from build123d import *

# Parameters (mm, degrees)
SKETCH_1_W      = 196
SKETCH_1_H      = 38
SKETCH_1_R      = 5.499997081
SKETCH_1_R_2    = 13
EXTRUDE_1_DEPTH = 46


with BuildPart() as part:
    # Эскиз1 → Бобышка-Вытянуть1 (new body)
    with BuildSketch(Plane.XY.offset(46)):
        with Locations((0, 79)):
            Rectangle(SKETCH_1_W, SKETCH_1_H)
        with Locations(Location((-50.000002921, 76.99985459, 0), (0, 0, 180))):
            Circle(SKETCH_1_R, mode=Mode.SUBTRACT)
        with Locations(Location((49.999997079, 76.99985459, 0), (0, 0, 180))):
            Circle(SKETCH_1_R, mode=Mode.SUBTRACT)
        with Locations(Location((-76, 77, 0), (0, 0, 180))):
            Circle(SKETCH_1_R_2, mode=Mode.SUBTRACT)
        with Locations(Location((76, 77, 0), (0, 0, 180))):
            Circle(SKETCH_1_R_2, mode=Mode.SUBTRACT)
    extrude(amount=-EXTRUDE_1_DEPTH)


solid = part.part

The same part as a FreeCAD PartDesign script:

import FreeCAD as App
import Part
import Sketcher
Q = App.Units.Quantity

doc = App.newDocument("Part")
params = doc.addObject("Spreadsheet::Sheet", "Params")
for row, (alias, value) in enumerate([
    ("sketch1_diameter", "26 mm"),
    ("sketch1_width", "196 mm"),
    ("sketch1_height", "38 mm"),
    ("pad1_length", "46 mm"),
], start=1):
    params.set(f"A{row}", alias)
    params.set(f"B{row}", "=" + value)
    params.setAlias(f"B{row}", alias)

body = doc.addObject("PartDesign::Body", "Body")

sketch1 = body.newObject("Sketcher::SketchObject", "Sketch")
sketch1.AttachmentSupport = (doc.getObject("XY_Plane"), [""])
sketch1.MapMode = "FlatFace"
sketch1.AttachmentOffset = App.Placement(App.Vector(0, 0, 46), App.Rotation())
sketch1.addGeometry([
    Part.LineSegment(App.Vector(-98, 98, 0), App.Vector(-98, 60, 0)),
    Part.LineSegment(App.Vector(-98, 60, 0), App.Vector(98, 60, 0)),
    Part.LineSegment(App.Vector(98, 60, 0), App.Vector(98, 98, 0)),
    Part.LineSegment(App.Vector(98, 98, 0), App.Vector(-98, 98, 0)),
    Part.Circle(App.Vector(-50.000003, 76.999855, 0), App.Vector(0, 0, 1), 5.499997),
    Part.Circle(App.Vector(49.999997, 76.999855, 0), App.Vector(0, 0, 1), 5.499997),
    Part.Circle(App.Vector(-76, 77, 0), App.Vector(0, 0, 1), 13),
    Part.Circle(App.Vector(76, 77, 0), App.Vector(0, 0, 1), 13),
], False)
sketch1.addConstraint([
    Sketcher.Constraint("Coincident", 0, 2, 1, 1),
    Sketcher.Constraint("Coincident", 1, 2, 2, 1),
    Sketcher.Constraint("Coincident", 2, 2, 3, 1),
    Sketcher.Constraint("Coincident", 3, 2, 0, 1),
    Sketcher.Constraint("Vertical", 0),
    Sketcher.Constraint("Horizontal", 1),
    Sketcher.Constraint("Vertical", 2),
    Sketcher.Constraint("Horizontal", 3),
    Sketcher.Constraint("Equal", 4, 5),
    Sketcher.Constraint("Equal", 6, 7),
    Sketcher.Constraint("Symmetric", 4, 3, 5, 3, -2),
    Sketcher.Constraint("Symmetric", 6, 3, 7, 3, -2),
    Sketcher.Constraint("Diameter", 6, Q("26 mm")),
    Sketcher.Constraint("DistanceX", 1, 1, 1, 2, Q("196 mm")),
    Sketcher.Constraint("DistanceY", 0, 2, 0, 1, Q("38 mm")),
    Sketcher.Constraint("DistanceX", 6, 3, -1, 1, Q("76 mm")),
    Sketcher.Constraint("DistanceY", -1, 1, 6, 3, Q("77 mm")),
    Sketcher.Constraint("DistanceX", 0, 2, -1, 1, Q("98 mm")),
    Sketcher.Constraint("DistanceY", -1, 1, 0, 2, Q("60 mm")),
    Sketcher.Constraint("DistanceX", 4, 3, 5, 3, Q("100 mm")),
    Sketcher.Constraint("Diameter", 4, Q("10.999994 mm")),
    Sketcher.Constraint("DistanceY", -1, 1, 4, 3, Q("76.999855 mm")),
])
sketch1.setExpression("Constraints[12]", "Params.sketch1_diameter")
sketch1.setExpression("Constraints[13]", "Params.sketch1_width")
sketch1.setExpression("Constraints[14]", "Params.sketch1_height")
pad1 = body.newObject("PartDesign::Pad", "Pad")
pad1.Profile = sketch1
pad1.setExpression("Length", "Params.pad1_length")
pad1.Reversed = True

doc.recompute()
